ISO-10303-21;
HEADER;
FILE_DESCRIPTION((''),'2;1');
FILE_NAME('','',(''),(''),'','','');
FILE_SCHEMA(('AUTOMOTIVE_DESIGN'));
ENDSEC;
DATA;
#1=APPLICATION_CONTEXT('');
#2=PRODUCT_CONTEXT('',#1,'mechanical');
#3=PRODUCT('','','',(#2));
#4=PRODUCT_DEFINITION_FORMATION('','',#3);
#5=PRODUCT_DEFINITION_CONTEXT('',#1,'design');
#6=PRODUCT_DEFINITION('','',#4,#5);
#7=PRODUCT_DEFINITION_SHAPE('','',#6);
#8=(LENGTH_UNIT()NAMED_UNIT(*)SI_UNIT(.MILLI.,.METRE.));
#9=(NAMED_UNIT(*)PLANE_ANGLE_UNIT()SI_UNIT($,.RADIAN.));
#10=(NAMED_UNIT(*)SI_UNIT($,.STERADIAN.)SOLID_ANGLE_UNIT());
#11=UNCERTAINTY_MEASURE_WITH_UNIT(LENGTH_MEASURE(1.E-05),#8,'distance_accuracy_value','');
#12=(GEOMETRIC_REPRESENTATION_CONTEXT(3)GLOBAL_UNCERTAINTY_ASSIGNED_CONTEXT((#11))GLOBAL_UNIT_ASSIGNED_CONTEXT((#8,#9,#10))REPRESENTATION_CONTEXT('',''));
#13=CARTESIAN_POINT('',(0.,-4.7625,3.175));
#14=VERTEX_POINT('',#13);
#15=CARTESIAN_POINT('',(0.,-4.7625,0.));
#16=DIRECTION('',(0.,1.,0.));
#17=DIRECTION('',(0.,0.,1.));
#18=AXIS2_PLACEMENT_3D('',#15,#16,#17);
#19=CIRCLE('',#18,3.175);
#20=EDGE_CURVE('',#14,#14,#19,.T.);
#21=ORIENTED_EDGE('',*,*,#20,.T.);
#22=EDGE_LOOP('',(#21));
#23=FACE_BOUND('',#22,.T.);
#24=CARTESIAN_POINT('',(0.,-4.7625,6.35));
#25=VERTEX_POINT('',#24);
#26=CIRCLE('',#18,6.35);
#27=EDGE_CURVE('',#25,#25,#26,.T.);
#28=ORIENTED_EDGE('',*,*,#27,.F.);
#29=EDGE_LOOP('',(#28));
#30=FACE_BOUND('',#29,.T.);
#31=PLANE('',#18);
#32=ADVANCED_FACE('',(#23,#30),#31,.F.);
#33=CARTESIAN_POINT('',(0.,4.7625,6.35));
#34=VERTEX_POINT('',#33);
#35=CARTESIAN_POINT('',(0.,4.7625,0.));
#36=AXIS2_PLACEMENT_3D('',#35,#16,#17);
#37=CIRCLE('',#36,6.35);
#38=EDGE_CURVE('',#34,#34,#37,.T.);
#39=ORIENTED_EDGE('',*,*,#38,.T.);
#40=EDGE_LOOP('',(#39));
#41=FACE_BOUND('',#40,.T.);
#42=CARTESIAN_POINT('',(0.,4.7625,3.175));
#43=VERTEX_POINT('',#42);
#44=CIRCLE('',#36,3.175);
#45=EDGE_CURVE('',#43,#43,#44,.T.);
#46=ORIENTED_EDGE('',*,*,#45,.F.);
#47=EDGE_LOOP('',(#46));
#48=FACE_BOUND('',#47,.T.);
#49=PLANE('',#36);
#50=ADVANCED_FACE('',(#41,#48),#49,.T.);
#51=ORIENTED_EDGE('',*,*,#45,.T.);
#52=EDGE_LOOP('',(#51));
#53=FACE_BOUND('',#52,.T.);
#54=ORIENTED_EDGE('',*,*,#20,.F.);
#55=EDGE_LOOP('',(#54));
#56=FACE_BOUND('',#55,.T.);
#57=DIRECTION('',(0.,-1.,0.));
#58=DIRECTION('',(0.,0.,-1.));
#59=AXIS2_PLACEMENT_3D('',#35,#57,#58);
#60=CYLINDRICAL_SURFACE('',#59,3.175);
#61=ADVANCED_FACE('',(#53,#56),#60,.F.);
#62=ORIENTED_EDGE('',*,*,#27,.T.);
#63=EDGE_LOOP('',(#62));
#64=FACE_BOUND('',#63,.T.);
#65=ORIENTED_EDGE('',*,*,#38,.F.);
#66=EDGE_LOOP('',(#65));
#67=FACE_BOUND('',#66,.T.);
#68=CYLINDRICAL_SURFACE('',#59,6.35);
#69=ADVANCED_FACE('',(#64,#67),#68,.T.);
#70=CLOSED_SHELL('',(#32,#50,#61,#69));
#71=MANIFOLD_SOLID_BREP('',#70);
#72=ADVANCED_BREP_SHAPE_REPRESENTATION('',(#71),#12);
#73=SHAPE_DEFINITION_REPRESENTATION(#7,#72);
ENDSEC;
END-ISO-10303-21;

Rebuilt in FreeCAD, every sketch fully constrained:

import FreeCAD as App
import Part
import Sketcher
from FreeCAD import Vector
Q = App.Units.Quantity

doc = App.newDocument("Part")
body = doc.addObject("PartDesign::Body", "Body")

# Sketch on XZ plane
sketch1 = body.newObject("Sketcher::SketchObject", "Sketch")
sketch1.AttachmentSupport = (doc.getObject("XZ_Plane"), [""])
sketch1.MapMode = "FlatFace"
sketch1.addGeometry([
    Part.Circle(Vector(0, 0, 0), Vector(0, 0, 1), 6.3),
    Part.Circle(Vector(0, 0, 0), Vector(0, 0, 1), 3.2),
], False)
sketch1.addConstraint([
    Sketcher.Constraint("Coincident", 0, 3, -1, 1),
    Sketcher.Constraint("Coincident", 1, 3, -1, 1),
    Sketcher.Constraint("Diameter", 0, Q("0.5 in")),
    Sketcher.Constraint("Diameter", 1, Q("0.25 in")),
])
pad1 = body.newObject("PartDesign::Pad", "Pad")
pad1.Profile = sketch1
pad1.Length = Q("0.375 in")
pad1.Midplane = True

doc.recompute()
